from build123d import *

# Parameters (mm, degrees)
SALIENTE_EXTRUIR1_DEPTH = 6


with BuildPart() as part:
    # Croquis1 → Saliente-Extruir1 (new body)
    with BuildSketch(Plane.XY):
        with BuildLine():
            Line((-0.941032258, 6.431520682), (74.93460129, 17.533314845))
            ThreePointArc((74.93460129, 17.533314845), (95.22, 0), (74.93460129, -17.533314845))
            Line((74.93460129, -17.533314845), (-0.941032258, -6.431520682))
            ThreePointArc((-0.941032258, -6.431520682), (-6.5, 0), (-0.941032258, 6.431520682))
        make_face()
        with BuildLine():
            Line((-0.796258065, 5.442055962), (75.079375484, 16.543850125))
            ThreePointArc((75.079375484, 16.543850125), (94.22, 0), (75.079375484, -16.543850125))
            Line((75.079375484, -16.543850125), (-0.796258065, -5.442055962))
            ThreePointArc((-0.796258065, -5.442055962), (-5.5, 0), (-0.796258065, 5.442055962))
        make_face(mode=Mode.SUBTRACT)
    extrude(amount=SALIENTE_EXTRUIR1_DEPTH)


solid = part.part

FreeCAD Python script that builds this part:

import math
import FreeCAD as App
import Part
import Sketcher
from FreeCAD import Vector
Q = App.Units.Quantity

doc = App.newDocument("Part")
body = doc.addObject("PartDesign::Body", "Body")

# Sketch on XY plane
sketch1 = doc.addObject("Sketcher::SketchObject", "Sketch")
body.addObject(sketch1)
sketch1.AttachmentSupport = (doc.XY_Plane, [""])
sketch1.MapMode = "FlatFace"
sketch1.addGeometry([
    Part.LineSegment(Vector(75, 18, 0), Vector(-1, 6, 0)),  # 0
    Part.ArcOfCircle(Part.Circle(Vector(0, 0, 0), Vector(0, 0, 1), 6), math.radians(98), math.radians(262)),  # 1
    Part.LineSegment(Vector(-1, -6, 0), Vector(75, -18, 0)),  # 2
    Part.ArcOfCircle(Part.Circle(Vector(78, 0, 0), Vector(0, 0, 1), 18), math.radians(-98), math.radians(98)),  # 3
    Part.LineSegment(Vector(-1, 5, 0), Vector(75, 17, 0)),  # 4
    Part.ArcOfCircle(Part.Circle(Vector(78, 0, 0), Vector(0, 0, 1), 17), math.radians(-98), math.radians(98)),  # 5
    Part.LineSegment(Vector(75, -17, 0), Vector(-1, -5, 0)),  # 6
    Part.ArcOfCircle(Part.Circle(Vector(0, 0, 0), Vector(0, 0, 1), 6), math.radians(98), math.radians(262)),  # 7
], False)
sketch1.addConstraint([
    Sketcher.Constraint("Tangent", 0, 2, 1, 1),
    Sketcher.Constraint("Tangent", 1, 2, 2, 1),
    Sketcher.Constraint("Tangent", 2, 2, 3, 1),
    Sketcher.Constraint("Tangent", 3, 2, 0, 1),
    Sketcher.Constraint("Tangent", 4, 2, 5, 2),
    Sketcher.Constraint("Tangent", 5, 1, 6, 1),
    Sketcher.Constraint("Tangent", 6, 2, 7, 2),
    Sketcher.Constraint("Tangent", 7, 1, 4, 1),
    Sketcher.Constraint("Coincident", 1, 3, -1, 1),
    Sketcher.Constraint("Coincident", 7, 3, -1, 1),
    Sketcher.Constraint("Coincident", 5, 3, 3, 3),
    Sketcher.Constraint("PointOnObject", 3, 3, -1),
    Sketcher.Constraint("Parallel", 0, 4),
    Sketcher.Constraint("Radius", 1, Q("6.5 mm")),
    Sketcher.Constraint("Radius", 7, Q("5.5 mm")),
    Sketcher.Constraint("Radius", 3, Q("17.72 mm")),
    Sketcher.Constraint("DistanceX", -1, 1, 3, 3, Q("77.5 mm")),
])
pad1 = doc.addObject("PartDesign::Pad", "Pad")
body.addObject(pad1)
pad1.Profile = sketch1
pad1.Length = 6

doc.recompute()
